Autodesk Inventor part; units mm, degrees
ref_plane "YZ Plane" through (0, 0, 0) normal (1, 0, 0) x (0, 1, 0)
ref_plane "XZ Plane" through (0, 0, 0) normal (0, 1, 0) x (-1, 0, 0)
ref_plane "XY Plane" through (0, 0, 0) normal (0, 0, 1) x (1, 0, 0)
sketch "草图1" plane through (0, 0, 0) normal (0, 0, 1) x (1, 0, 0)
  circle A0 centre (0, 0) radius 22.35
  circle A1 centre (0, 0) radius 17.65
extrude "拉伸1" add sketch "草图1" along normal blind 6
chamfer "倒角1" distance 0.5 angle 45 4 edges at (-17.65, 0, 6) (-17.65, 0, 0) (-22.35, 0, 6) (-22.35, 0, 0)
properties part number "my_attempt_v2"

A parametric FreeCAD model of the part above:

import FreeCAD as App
import Part
import Sketcher
Q = App.Units.Quantity


def edges_at(feature, points):
    """Names of the edges that pass closest to the given points."""
    edges = feature.Shape.Edges
    near = lambda p: min(range(len(edges)), key=lambda i: edges[i].distToShape(Part.Vertex(*p))[0])
    return sorted({f"Edge{near(p) + 1}" for p in points})

doc = App.newDocument("Part")
body = doc.addObject("PartDesign::Body", "Body")

# Sketch on XY plane
sketch1 = body.newObject("Sketcher::SketchObject", "Sketch")
sketch1.AttachmentSupport = (doc.getObject("XY_Plane"), [""])
sketch1.MapMode = "FlatFace"
sketch1.addGeometry([
    Part.Circle(App.Vector(0, 0, 0), App.Vector(0, 0, 1), 22.35),
    Part.Circle(App.Vector(0, 0, 0), App.Vector(0, 0, 1), 17.65),
], False)
sketch1.addConstraint([
    Sketcher.Constraint("Coincident", 0, 3, -1, 1),
    Sketcher.Constraint("Coincident", 1, 3, -1, 1),
    Sketcher.Constraint("Diameter", 0, Q("44.7 mm")),
    Sketcher.Constraint("Diameter", 1, Q("35.3 mm")),
])
pad1 = body.newObject("PartDesign::Pad", "Pad")
pad1.Profile = sketch1
pad1.Length = 6
doc.recompute()

chamfer = body.newObject("PartDesign::Chamfer", "Chamfer")
chamfer.Base = (pad1, edges_at(pad1, [
    (-17.65, 0, 6),
    (-17.65, 0, 0),
    (-22.35, 0, 6),
    (-22.35, 0, 0),
]))
chamfer.Size = 0.5

doc.recompute()
